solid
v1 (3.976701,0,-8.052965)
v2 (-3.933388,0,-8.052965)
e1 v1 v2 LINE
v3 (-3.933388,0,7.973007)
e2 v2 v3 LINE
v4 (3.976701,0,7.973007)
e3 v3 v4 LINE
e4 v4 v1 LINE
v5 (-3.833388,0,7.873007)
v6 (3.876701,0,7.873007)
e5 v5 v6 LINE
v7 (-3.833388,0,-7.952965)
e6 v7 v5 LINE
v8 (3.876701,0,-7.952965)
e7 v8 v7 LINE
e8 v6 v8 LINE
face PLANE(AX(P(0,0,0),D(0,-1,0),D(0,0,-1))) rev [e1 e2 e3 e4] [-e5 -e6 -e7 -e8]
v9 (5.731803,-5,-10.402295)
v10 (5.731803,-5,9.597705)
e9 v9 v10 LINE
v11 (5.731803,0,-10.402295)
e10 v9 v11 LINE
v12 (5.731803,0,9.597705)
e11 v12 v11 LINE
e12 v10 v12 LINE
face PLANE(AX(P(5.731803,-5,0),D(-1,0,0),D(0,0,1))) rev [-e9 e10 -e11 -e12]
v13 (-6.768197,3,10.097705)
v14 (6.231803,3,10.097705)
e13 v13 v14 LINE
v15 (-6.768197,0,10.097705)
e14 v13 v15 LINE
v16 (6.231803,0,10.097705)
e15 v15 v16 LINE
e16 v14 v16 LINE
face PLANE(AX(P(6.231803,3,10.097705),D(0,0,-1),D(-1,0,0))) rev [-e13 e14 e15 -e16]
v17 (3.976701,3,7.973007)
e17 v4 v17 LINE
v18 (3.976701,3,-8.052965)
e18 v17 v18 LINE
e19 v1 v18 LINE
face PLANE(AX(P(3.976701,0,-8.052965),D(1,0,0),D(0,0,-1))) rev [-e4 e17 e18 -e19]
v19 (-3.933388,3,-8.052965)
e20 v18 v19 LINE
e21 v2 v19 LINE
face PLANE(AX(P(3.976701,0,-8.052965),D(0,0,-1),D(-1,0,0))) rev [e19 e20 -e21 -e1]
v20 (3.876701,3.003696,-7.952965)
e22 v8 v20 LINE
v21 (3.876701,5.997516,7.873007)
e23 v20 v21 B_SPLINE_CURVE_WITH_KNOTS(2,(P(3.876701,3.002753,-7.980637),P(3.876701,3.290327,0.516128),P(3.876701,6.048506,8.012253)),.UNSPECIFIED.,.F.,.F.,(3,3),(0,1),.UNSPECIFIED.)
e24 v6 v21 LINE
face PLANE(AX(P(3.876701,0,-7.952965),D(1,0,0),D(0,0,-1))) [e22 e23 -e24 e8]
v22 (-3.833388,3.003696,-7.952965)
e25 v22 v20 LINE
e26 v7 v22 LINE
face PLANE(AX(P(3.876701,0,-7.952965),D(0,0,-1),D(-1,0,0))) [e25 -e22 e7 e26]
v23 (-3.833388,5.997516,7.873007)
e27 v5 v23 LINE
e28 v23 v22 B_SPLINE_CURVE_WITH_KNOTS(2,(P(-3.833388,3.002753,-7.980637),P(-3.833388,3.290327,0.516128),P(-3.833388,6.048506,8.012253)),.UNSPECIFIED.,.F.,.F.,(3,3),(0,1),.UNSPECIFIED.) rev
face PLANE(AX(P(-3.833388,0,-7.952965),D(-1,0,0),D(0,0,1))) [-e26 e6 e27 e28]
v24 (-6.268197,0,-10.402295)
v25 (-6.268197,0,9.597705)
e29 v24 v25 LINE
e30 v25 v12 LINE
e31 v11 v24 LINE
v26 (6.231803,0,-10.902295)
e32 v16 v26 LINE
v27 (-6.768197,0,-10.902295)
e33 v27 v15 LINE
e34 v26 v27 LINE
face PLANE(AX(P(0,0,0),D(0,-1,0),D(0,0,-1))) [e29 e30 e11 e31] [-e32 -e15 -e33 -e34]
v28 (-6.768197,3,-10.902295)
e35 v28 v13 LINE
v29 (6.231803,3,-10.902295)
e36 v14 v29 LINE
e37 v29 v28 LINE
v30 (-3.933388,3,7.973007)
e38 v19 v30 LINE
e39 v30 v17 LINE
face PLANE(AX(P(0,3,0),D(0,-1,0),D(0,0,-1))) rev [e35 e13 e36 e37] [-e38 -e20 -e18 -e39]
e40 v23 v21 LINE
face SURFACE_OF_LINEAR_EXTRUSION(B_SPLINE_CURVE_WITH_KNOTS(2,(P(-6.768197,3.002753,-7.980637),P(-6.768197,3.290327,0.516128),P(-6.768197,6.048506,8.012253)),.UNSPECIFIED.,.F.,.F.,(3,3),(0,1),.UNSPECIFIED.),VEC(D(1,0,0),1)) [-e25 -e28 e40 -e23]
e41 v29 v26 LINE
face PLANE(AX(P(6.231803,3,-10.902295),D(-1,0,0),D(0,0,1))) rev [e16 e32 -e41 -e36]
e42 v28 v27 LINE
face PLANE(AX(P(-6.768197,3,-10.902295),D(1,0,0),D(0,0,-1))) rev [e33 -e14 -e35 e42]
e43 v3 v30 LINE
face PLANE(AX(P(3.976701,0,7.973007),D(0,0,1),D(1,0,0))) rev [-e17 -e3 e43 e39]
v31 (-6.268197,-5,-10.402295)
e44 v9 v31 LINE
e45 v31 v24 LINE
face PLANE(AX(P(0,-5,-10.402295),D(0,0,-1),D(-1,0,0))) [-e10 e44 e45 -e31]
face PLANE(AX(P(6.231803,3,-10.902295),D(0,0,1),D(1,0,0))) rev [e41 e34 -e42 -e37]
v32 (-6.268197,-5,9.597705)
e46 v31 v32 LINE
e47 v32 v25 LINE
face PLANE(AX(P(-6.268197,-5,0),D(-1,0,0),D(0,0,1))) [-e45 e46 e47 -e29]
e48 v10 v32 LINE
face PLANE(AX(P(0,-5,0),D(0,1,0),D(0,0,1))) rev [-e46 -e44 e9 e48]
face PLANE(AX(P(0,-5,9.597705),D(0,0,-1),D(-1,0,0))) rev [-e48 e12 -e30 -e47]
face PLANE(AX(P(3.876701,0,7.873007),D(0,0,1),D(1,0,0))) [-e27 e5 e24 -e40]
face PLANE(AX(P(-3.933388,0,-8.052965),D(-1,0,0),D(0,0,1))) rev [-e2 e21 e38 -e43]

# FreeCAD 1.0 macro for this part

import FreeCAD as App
import Part
import Sketcher

V = App.Vector
Q = App.Units.Quantity

doc = App.newDocument("Part")
params = doc.addObject("Spreadsheet::Sheet", "Params")
for row, (alias, value) in enumerate([
    ("sketch1_width", "13 mm"),
    ("sketch1_width2", "12 mm"),
    ("sketch1_height", "21 mm"),
    ("sketch1_height2", "20 mm"),
    ("pad1_length", "3 mm"),
    ("sketch2_width", "12 mm"),
    ("sketch2_height", "20 mm"),
    ("pad2_length", "3 mm"),
    ("pad2_length2", "5 mm"),
    ("pocket1_length", "3 mm"),
    ("pad3_length", "3 mm"),
], start=1):
    params.set(f"A{row}", alias)
    params.set(f"B{row}", "=" + value)
    params.setAlias(f"B{row}", alias)

body = doc.addObject("PartDesign::Body", "Body")

sketch1 = body.newObject("Sketcher::SketchObject", "Sketch")
sketch1.AttachmentSupport = (doc.getObject("XZ_Plane"), [""])
sketch1.MapMode = "FlatFace"
sketch1.addGeometry([
    Part.LineSegment(V(-7, -11, 0), V(-7, 10, 0)),
    Part.LineSegment(V(-7, 10, 0), V(6, 10, 0)),
    Part.LineSegment(V(6, 10, 0), V(6, -11, 0)),
    Part.LineSegment(V(6, -11, 0), V(-7, -11, 0)),
    Part.LineSegment(V(6, 10, 0), V(-6, 10, 0)),
    Part.LineSegment(V(-6, 10, 0), V(-6, -10, 0)),
    Part.LineSegment(V(-6, -10, 0), V(6, -10, 0)),
    Part.LineSegment(V(6, -10, 0), V(6, 10, 0)),
], False)
sketch1.addConstraint([
    Sketcher.Constraint("Coincident", 0, 2, 1, 1),
    Sketcher.Constraint("Coincident", 1, 2, 2, 1),
    Sketcher.Constraint("Coincident", 2, 2, 3, 1),
    Sketcher.Constraint("Coincident", 3, 2, 0, 1),
    Sketcher.Constraint("Coincident", 4, 2, 5, 1),
    Sketcher.Constraint("Coincident", 5, 2, 6, 1),
    Sketcher.Constraint("Coincident", 6, 2, 7, 1),
    Sketcher.Constraint("Coincident", 7, 2, 4, 1),
    Sketcher.Constraint("Vertical", 0),
    Sketcher.Constraint("Horizontal", 1),
    Sketcher.Constraint("Vertical", 2),
    Sketcher.Constraint("Horizontal", 3),
    Sketcher.Constraint("Horizontal", 4),
    Sketcher.Constraint("Vertical", 5),
    Sketcher.Constraint("Horizontal", 6),
    Sketcher.Constraint("Vertical", 7),
    Sketcher.Constraint("DistanceX", 1, 1, 1, 2, Q("13 mm")),
    Sketcher.Constraint("DistanceX", 4, 2, 4, 1, Q("12 mm")),
    Sketcher.Constraint("DistanceY", 0, 1, 0, 2, Q("21 mm")),
    Sketcher.Constraint("DistanceY", 5, 2, 5, 1, Q("20 mm")),
    Sketcher.Constraint("DistanceX", 0, 2, 4, 2, Q("0.5 mm")),
    Sketcher.Constraint("DistanceY", 4, 2, 0, 2, Q("0.5 mm")),
    Sketcher.Constraint("DistanceX", 0, 2, -1, 1, Q("6.768197 mm")),
    Sketcher.Constraint("DistanceY", -1, 1, 0, 2, Q("10.097705 mm")),
])
sketch1.setExpression("Constraints[16]", "Params.sketch1_width")
sketch1.setExpression("Constraints[17]", "Params.sketch1_width2")
sketch1.setExpression("Constraints[18]", "Params.sketch1_height")
sketch1.setExpression("Constraints[19]", "Params.sketch1_height2")
pad1 = body.newObject("PartDesign::Pad", "Pad")
pad1.Profile = sketch1
pad1.setExpression("Length", "Params.pad1_length")
pad1.Reversed = True

sketch2 = body.newObject("Sketcher::SketchObject", "Sketch001")
sketch2.AttachmentSupport = (doc.getObject("XZ_Plane"), [""])
sketch2.MapMode = "FlatFace"
sketch2.addGeometry([
    Part.LineSegment(V(-6, -10, 0), V(-6, 10, 0)),
    Part.LineSegment(V(-6, 10, 0), V(6, 10, 0)),
    Part.LineSegment(V(6, 10, 0), V(6, -10, 0)),
    Part.LineSegment(V(6, -10, 0), V(-6, -10, 0)),
], False)
sketch2.addConstraint([
    Sketcher.Constraint("Coincident", 0, 2, 1, 1),
    Sketcher.Constraint("Coincident", 1, 2, 2, 1),
    Sketcher.Constraint("Coincident", 2, 2, 3, 1),
    Sketcher.Constraint("Coincident", 3, 2, 0, 1),
    Sketcher.Constraint("Vertical", 0),
    Sketcher.Constraint("Horizontal", 1),
    Sketcher.Constraint("Vertical", 2),
    Sketcher.Constraint("Horizontal", 3),
    Sketcher.Constraint("DistanceX", 1, 1, 1, 2, Q("12 mm")),
    Sketcher.Constraint("DistanceY", 0, 1, 0, 2, Q("20 mm")),
    Sketcher.Constraint("DistanceX", 0, 2, -1, 1, Q("6.268197 mm")),
    Sketcher.Constraint("DistanceY", -1, 1, 0, 2, Q("9.597705 mm")),
])
sketch2.setExpression("Constraints[8]", "Params.sketch2_width")
sketch2.setExpression("Constraints[9]", "Params.sketch2_height")
pad2 = body.newObject("PartDesign::Pad", "Pad001")
pad2.Profile = sketch2
pad2.Type = "TwoLengths"
pad2.setExpression("Length", "Params.pad2_length")
pad2.setExpression("Length2", "Params.pad2_length2")
pad2.Reversed = True

sketch3 = body.newObject("Sketcher::SketchObject", "Sketch002")
sketch3.AttachmentSupport = (doc.getObject("XZ_Plane"), [""])
sketch3.MapMode = "FlatFace"
sketch3.AttachmentOffset = App.Placement(V(0, 0, -3), App.Rotation())
sketch3.addGeometry([
    Part.LineSegment(V(-4, -8, 0), V(-4, 8, 0)),
    Part.LineSegment(V(-4, 8, 0), V(4, 8, 0)),
    Part.LineSegment(V(4, 8, 0), V(4, -8, 0)),
    Part.LineSegment(V(4, -8, 0), V(-4, -8, 0)),
    Part.LineSegment(V(4, 8, 0), V(-4, 8, 0)),
    Part.LineSegment(V(-4, 8, 0), V(-4, -8, 0)),
    Part.LineSegment(V(-4, -8, 0), V(4, -8, 0)),
    Part.LineSegment(V(4, -8, 0), V(4, 8, 0)),
], False)
sketch3.addConstraint([
    Sketcher.Constraint("Coincident", 0, 2, 1, 1),
    Sketcher.Constraint("Coincident", 1, 2, 2, 1),
    Sketcher.Constraint("Coincident", 2, 2, 3, 1),
    Sketcher.Constraint("Coincident", 3, 2, 0, 1),
    Sketcher.Constraint("Coincident", 4, 2, 5, 1),
    Sketcher.Constraint("Coincident", 5, 2, 6, 1),
    Sketcher.Constraint("Coincident", 6, 2, 7, 1),
    Sketcher.Constraint("Coincident", 7, 2, 4, 1),
    Sketcher.Constraint("Vertical", 0),
    Sketcher.Constraint("Horizontal", 1),
    Sketcher.Constraint("Vertical", 2),
    Sketcher.Constraint("Horizontal", 3),
    Sketcher.Constraint("Horizontal", 4),
    Sketcher.Constraint("Vertical", 5),
    Sketcher.Constraint("Horizontal", 6),
    Sketcher.Constraint("Vertical", 7),
    Sketcher.Constraint("DistanceX", 0, 2, 4, 2, Q("0.1 mm")),
    Sketcher.Constraint("DistanceY", 4, 2, 0, 2, Q("0.1 mm")),
    Sketcher.Constraint("DistanceY", 3, 2, 5, 2, Q("0.1 mm")),
    Sketcher.Constraint("DistanceX", 6, 2, 2, 2, Q("0.1 mm")),
    Sketcher.Constraint("DistanceX", 1, 1, 1, 2, Q("7.910089 mm")),
    Sketcher.Constraint("DistanceX", -1, 1, 1, 2, Q("3.976701 mm")),
    Sketcher.Constraint("DistanceY", 0, 1, 0, 2, Q("16.025972 mm")),
    Sketcher.Constraint("DistanceY", -1, 1, 0, 2, Q("7.973007 mm")),
])
pocket1 = body.newObject("PartDesign::Pocket", "Pocket")
pocket1.Profile = sketch3
pocket1.setExpression("Length", "Params.pocket1_length")
pocket1.Reversed = True

sketch4 = body.newObject("Sketcher::SketchObject", "Sketch003")
sketch4.AttachmentSupport = (doc.getObject("XZ_Plane"), [""])
sketch4.MapMode = "FlatFace"
sketch4.AttachmentOffset = App.Placement(V(0, 0, -3), App.Rotation())
sketch4.addGeometry([
    Part.LineSegment(V(-4, -8, 0), V(-4, 8, 0)),
    Part.LineSegment(V(-4, 8, 0), V(4, 8, 0)),
    Part.LineSegment(V(4, 8, 0), V(4, -8, 0)),
    Part.LineSegment(V(4, -8, 0), V(-4, -8, 0)),
], False)
sketch4.addConstraint([
    Sketcher.Constraint("Coincident", 0, 2, 1, 1),
    Sketcher.Constraint("Coincident", 1, 2, 2, 1),
    Sketcher.Constraint("Coincident", 2, 2, 3, 1),
    Sketcher.Constraint("Coincident", 3, 2, 0, 1),
    Sketcher.Constraint("Vertical", 0),
    Sketcher.Constraint("Horizontal", 1),
    Sketcher.Constraint("Vertical", 2),
    Sketcher.Constraint("Horizontal", 3),
    Sketcher.Constraint("DistanceX", 1, 1, 1, 2, Q("7.710089 mm")),
    Sketcher.Constraint("DistanceX", -1, 1, 1, 2, Q("3.876701 mm")),
    Sketcher.Constraint("DistanceY", 0, 1, 0, 2, Q("15.825972 mm")),
    Sketcher.Constraint("DistanceY", -1, 1, 0, 2, Q("7.873007 mm")),
])
pad3 = body.newObject("PartDesign::Pad", "Pad002")
pad3.Profile = sketch4
pad3.setExpression("Length", "Params.pad3_length")
pad3.Reversed = True

sketch5 = body.newObject("Sketcher::SketchObject", "Sketch004")
sketch5.AttachmentSupport = (doc.getObject("YZ_Plane"), [""])
sketch5.MapMode = "FlatFace"
sketch5.AttachmentOffset = App.Placement(V(0, 0, 3.876701), App.Rotation())
sketch5.addGeometry([
    Part.BSplineCurve([V(3.003696, -7.952965, 0), V(3.292112, 0.449484, 0), V(5.997516, 7.873007, 0)], [3, 3], [0.001628514, 0.990717924], False, 2, [1, 1, 1], False),
    Part.LineSegment(V(3.003696, -7.952965, 0), V(6, -7.952965, 0)),
    Part.LineSegment(V(6, -7.952965, 0), V(6, 7.873007, 0)),
    Part.LineSegment(V(6, 7.873007, 0), V(5.997516, 7.873007, 0)),
], False)
sketch5.addConstraint([
    Sketcher.Constraint("Block", 0),
    Sketcher.Constraint("Coincident", 0, 1, 1, 1),
    Sketcher.Constraint("Coincident", 1, 2, 2, 1),
    Sketcher.Constraint("Coincident", 2, 2, 3, 1),
    Sketcher.Constraint("Coincident", 3, 2, 0, 2),
    Sketcher.Constraint("Horizontal", 1),
    Sketcher.Constraint("Vertical", 2),
    Sketcher.Constraint("Horizontal", 3),
    Sketcher.Constraint("DistanceX", -1, 1, 1, 2, Q("6 mm")),
])
pocket2 = body.newObject("PartDesign::Pocket", "Pocket001")
pocket2.Profile = sketch5
pocket2.Type = "ThroughAll"

doc.recompute()
